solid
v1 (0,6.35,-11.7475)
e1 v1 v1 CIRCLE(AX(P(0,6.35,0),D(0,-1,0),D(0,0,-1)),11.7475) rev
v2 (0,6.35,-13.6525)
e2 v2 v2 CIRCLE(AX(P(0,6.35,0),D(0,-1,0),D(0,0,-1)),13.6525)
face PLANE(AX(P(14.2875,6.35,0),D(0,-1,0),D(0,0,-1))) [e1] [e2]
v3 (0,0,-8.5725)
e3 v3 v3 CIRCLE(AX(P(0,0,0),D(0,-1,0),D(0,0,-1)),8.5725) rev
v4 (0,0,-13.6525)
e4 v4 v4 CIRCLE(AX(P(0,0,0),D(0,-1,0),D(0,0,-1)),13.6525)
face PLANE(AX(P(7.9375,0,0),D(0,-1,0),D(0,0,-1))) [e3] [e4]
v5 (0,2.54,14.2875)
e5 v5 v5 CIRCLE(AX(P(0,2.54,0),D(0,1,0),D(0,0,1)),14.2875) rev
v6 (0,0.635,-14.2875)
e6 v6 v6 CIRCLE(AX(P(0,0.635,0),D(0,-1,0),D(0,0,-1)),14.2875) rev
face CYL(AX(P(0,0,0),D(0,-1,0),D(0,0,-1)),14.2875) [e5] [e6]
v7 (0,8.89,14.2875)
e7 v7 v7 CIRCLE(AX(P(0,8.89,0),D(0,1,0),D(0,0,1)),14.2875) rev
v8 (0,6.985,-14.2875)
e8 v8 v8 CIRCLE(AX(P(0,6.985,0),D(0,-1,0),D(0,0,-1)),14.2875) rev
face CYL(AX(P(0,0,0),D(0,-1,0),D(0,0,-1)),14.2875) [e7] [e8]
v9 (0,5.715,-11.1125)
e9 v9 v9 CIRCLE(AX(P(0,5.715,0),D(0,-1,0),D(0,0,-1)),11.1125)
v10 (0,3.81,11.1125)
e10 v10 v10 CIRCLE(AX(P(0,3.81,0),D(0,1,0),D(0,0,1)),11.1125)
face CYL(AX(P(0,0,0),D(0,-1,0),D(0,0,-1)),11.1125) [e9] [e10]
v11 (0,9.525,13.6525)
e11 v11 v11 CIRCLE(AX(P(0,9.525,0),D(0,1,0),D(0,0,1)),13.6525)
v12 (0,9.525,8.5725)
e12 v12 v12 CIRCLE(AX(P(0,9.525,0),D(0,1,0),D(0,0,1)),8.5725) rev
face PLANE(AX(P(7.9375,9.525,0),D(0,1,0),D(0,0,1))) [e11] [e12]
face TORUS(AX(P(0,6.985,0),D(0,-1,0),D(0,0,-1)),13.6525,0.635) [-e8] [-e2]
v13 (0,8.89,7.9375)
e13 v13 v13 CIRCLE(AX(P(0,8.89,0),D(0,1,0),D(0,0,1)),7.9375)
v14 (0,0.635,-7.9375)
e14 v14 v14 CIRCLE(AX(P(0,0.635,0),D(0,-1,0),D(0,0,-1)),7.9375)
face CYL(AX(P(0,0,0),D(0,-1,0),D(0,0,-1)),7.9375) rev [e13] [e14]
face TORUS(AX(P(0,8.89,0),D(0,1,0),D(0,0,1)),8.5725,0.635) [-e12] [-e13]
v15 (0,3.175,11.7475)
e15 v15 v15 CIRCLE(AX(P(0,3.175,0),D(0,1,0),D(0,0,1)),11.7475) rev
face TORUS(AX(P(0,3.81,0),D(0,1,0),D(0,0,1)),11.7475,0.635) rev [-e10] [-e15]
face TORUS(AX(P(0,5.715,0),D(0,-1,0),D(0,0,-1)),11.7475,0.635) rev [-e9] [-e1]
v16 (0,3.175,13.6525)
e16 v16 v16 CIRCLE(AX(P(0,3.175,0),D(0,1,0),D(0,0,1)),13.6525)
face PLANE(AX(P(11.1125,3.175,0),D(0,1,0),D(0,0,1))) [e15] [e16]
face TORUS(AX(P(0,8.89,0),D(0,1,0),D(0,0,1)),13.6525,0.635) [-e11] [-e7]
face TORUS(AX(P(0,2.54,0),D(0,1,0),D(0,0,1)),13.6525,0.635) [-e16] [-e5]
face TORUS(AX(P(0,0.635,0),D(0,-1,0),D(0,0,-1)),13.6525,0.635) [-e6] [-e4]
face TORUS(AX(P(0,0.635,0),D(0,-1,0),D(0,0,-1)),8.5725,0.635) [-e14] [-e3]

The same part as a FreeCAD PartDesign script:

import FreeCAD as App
import Part
import Sketcher

V = App.Vector
Q = App.Units.Quantity


def edges_at(feature, points):
    """Names of the edges that pass closest to the given points."""
    edges = feature.Shape.Edges
    near = lambda p: min(range(len(edges)), key=lambda i: edges[i].distToShape(Part.Vertex(*p))[0])
    return sorted({f"Edge{near(p) + 1}" for p in points})


def add_polygon(sketch, points):
    """Adds a closed chain of lines whose ends are joined by coincident constraints."""
    first, n = sketch.GeometryCount, len(points)
    for a, b in zip(points, points[1:] + points[:1]):
        sketch.addGeometry(Part.LineSegment(App.Vector(*a, 0), App.Vector(*b, 0)), False)
    for i in range(n):
        sketch.addConstraint(Sketcher.Constraint("Coincident", first + i, 2, first + (i + 1) % n, 1))

doc = App.newDocument("Part")
body = doc.addObject("PartDesign::Body", "Body")

# Sketch on XY plane
sketch1 = body.newObject("Sketcher::SketchObject", "Sketch")
sketch1.AttachmentSupport = (doc.getObject("XY_Plane"), [""])
sketch1.MapMode = "FlatFace"
add_polygon(sketch1, [(7.9375, 0), (14.2875, 0), (14.2875, 3.175), (11.1125, 3.175), (11.1125, 6.35), (14.2875, 6.35), (14.2875, 9.525), (7.9375, 9.525)])  # lines 0-7
sketch1.addConstraint([
    Sketcher.Constraint("Horizontal", 0),
    Sketcher.Constraint("Vertical", 1),
    Sketcher.Constraint("Horizontal", 2),
    Sketcher.Constraint("Vertical", 3),
    Sketcher.Constraint("Horizontal", 4),
    Sketcher.Constraint("Vertical", 5),
    Sketcher.Constraint("Horizontal", 6),
    Sketcher.Constraint("Vertical", 7),
    Sketcher.Constraint("PointOnObject", 0, 2, -1),
    Sketcher.Constraint("Vertical", 1, 2, 4, 2),
    Sketcher.Constraint("Equal", 4, 1),
    Sketcher.Constraint("Equal", 1, 3),
    Sketcher.Constraint("Equal", 3, 5),
    Sketcher.Constraint("DistanceX", 0, 1, 0, 2, Q("0.25 in")),
    Sketcher.Constraint("DistanceX", 2, 2, 2, 1, Q("0.125 in")),
    Sketcher.Constraint("DistanceX", -1, 1, 0, 2, Q("0.5625 in")),
])
revolution = body.newObject("PartDesign::Revolution", "Revolution")
revolution.Profile = sketch1
revolution.ReferenceAxis = (sketch1, ["V_Axis"])
revolution.Angle = 360
doc.recompute()

fillet = body.newObject("PartDesign::Fillet", "Fillet")
fillet.Base = (revolution, edges_at(revolution, [
    (0, 0, 7.938),
    (0, 0, 14.287),
    (0, 3.175, 14.287),
    (0, 3.175, 11.113),
    (0, 6.35, 11.113),
    (0, 6.35, 14.287),
    (0, 9.525, 14.287),
    (0, 9.525, 7.938),
]))
fillet.Radius = Q("0.025 in")

doc.recompute()
